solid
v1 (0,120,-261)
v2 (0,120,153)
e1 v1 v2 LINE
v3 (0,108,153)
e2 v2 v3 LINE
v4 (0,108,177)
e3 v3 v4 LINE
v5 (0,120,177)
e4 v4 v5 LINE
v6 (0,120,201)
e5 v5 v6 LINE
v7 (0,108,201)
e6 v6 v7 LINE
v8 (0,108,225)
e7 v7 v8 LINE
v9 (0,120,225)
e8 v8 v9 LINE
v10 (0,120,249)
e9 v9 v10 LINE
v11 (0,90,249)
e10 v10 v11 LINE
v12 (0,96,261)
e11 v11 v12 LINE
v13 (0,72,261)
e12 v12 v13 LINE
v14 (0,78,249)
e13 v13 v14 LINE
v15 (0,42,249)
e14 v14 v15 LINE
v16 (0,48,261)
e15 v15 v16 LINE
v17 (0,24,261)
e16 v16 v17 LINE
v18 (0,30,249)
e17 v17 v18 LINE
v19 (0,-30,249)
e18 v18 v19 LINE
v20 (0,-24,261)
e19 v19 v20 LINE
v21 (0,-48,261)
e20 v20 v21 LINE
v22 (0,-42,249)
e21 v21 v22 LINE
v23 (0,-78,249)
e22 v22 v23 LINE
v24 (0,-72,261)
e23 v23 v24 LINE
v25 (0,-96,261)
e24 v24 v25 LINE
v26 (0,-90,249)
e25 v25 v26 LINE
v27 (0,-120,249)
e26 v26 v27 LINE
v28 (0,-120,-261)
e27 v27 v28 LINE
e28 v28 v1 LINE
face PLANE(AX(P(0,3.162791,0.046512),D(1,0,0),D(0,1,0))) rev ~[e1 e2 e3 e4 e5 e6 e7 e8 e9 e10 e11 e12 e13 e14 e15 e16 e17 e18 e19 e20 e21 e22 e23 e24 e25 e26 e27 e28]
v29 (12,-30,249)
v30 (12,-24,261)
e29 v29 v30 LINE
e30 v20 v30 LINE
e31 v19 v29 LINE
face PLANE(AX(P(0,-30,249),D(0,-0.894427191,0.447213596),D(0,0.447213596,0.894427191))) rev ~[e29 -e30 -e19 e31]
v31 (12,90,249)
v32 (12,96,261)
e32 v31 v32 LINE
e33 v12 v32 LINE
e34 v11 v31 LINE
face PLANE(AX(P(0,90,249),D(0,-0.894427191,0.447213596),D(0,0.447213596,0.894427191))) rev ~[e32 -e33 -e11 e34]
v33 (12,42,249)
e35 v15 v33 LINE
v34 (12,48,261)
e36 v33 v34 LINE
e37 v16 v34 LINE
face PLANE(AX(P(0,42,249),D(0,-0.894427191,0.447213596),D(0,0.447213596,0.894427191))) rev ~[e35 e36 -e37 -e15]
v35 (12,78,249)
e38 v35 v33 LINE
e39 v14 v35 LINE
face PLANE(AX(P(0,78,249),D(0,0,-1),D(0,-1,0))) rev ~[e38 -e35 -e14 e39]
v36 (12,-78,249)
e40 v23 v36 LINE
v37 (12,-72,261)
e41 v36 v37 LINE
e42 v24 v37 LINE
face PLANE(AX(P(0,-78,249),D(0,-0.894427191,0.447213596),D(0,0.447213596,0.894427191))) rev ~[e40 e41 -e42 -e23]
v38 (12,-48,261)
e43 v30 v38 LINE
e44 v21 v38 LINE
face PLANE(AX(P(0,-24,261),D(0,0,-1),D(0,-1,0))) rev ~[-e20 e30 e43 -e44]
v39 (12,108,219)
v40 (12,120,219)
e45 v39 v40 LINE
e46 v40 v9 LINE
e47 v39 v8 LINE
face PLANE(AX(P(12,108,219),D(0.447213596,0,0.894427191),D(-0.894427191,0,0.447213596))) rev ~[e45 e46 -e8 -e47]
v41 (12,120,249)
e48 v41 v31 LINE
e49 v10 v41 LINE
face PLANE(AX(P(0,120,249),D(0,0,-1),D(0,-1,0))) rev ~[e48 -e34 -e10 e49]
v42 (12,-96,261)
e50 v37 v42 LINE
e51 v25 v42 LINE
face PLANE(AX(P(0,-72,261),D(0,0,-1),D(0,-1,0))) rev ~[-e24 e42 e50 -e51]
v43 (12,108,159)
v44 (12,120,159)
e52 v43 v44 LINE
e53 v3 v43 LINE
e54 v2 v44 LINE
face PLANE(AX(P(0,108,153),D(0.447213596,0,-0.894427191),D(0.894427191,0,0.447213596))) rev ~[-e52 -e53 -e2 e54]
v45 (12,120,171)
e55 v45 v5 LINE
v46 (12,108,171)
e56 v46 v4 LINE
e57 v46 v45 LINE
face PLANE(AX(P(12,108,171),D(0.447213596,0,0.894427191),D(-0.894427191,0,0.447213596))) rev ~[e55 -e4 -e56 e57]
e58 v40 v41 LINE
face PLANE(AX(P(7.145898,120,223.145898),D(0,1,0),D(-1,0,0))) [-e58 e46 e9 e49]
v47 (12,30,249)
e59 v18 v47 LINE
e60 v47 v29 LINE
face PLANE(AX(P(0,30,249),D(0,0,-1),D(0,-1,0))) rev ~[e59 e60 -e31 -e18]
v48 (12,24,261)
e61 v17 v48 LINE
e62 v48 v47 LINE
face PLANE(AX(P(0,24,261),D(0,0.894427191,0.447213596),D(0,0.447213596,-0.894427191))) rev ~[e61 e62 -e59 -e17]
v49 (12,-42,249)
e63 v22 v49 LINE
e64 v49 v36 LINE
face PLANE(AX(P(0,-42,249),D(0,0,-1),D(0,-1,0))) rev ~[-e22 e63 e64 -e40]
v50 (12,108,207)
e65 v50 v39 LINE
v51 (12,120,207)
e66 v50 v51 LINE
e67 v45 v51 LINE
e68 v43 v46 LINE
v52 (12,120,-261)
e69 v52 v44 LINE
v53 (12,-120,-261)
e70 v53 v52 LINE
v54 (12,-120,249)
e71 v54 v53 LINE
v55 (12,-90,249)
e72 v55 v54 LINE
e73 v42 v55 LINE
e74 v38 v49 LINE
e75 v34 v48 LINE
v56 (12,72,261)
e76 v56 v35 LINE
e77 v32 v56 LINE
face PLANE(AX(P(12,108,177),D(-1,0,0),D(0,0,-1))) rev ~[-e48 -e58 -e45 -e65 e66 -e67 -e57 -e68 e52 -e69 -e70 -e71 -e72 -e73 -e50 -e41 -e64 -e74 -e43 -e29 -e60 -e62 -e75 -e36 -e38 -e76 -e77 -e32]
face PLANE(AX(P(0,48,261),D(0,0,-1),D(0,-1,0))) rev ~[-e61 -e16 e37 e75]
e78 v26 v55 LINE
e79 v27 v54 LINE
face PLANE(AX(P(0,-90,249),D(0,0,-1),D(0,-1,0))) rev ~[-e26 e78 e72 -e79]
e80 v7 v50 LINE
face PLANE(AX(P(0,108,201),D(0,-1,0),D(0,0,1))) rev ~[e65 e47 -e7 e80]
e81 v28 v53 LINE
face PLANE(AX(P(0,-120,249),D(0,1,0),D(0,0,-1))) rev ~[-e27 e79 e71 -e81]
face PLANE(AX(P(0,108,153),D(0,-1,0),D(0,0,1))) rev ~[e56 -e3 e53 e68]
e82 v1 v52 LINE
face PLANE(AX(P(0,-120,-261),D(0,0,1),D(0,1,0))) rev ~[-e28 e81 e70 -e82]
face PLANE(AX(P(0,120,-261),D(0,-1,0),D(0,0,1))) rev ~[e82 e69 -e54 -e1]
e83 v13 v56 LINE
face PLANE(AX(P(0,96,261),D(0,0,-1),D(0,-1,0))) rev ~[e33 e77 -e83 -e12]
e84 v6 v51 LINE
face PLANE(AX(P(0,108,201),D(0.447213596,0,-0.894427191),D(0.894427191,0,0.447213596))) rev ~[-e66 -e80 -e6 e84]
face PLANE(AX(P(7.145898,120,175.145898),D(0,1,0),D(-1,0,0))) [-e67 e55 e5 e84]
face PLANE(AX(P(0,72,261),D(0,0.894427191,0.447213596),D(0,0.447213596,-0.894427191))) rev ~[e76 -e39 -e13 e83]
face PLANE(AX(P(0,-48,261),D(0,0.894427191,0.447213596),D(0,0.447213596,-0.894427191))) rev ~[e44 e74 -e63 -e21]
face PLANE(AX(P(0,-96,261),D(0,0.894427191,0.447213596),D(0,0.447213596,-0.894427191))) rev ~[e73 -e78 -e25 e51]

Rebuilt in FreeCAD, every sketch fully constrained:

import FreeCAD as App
import Part
import Sketcher
Q = App.Units.Quantity

doc = App.newDocument("Part")
body = doc.addObject("PartDesign::Body", "Body")

sketch1 = body.newObject("Sketcher::SketchObject", "Sketch")
sketch1.AttachmentSupport = (doc.getObject("YZ_Plane"), [""])
sketch1.MapMode = "FlatFace"
sketch1.addGeometry([
    Part.LineSegment(App.Vector(120, 225, 0), App.Vector(120, 249, 0)),
    Part.LineSegment(App.Vector(120, 249, 0), App.Vector(90, 249, 0)),
    Part.LineSegment(App.Vector(90, 249, 0), App.Vector(96, 261, 0)),
    Part.LineSegment(App.Vector(96, 261, 0), App.Vector(72, 261, 0)),
    Part.LineSegment(App.Vector(72, 261, 0), App.Vector(78, 249, 0)),
    Part.LineSegment(App.Vector(78, 249, 0), App.Vector(42, 249, 0)),
    Part.LineSegment(App.Vector(42, 249, 0), App.Vector(48, 261, 0)),
    Part.LineSegment(App.Vector(48, 261, 0), App.Vector(24, 261, 0)),
    Part.LineSegment(App.Vector(24, 261, 0), App.Vector(30, 249, 0)),
    Part.LineSegment(App.Vector(30, 249, 0), App.Vector(-30, 249, 0)),
    Part.LineSegment(App.Vector(-30, 249, 0), App.Vector(-24, 261, 0)),
    Part.LineSegment(App.Vector(-24, 261, 0), App.Vector(-48, 261, 0)),
    Part.LineSegment(App.Vector(-48, 261, 0), App.Vector(-42, 249, 0)),
    Part.LineSegment(App.Vector(-42, 249, 0), App.Vector(-78, 249, 0)),
    Part.LineSegment(App.Vector(-78, 249, 0), App.Vector(-72, 261, 0)),
    Part.LineSegment(App.Vector(-72, 261, 0), App.Vector(-96, 261, 0)),
    Part.LineSegment(App.Vector(-96, 261, 0), App.Vector(-90, 249, 0)),
    Part.LineSegment(App.Vector(-90, 249, 0), App.Vector(-120, 249, 0)),
    Part.LineSegment(App.Vector(-120, 249, 0), App.Vector(-120, -261, 0)),
    Part.LineSegment(App.Vector(-120, -261, 0), App.Vector(120, -261, 0)),
    Part.LineSegment(App.Vector(120, -261, 0), App.Vector(120, 153, 0)),
    Part.LineSegment(App.Vector(120, 153, 0), App.Vector(108, 153, 0)),
    Part.LineSegment(App.Vector(108, 153, 0), App.Vector(108, 177, 0)),
    Part.LineSegment(App.Vector(108, 177, 0), App.Vector(120, 177, 0)),
    Part.LineSegment(App.Vector(120, 177, 0), App.Vector(120, 201, 0)),
    Part.LineSegment(App.Vector(120, 201, 0), App.Vector(108, 201, 0)),
    Part.LineSegment(App.Vector(108, 201, 0), App.Vector(108, 225, 0)),
    Part.LineSegment(App.Vector(108, 225, 0), App.Vector(120, 225, 0)),
], False)
sketch1.addConstraint([
    Sketcher.Constraint("Coincident", 0, 2, 1, 1),
    Sketcher.Constraint("Coincident", 1, 2, 2, 1),
    Sketcher.Constraint("Coincident", 2, 2, 3, 1),
    Sketcher.Constraint("Coincident", 3, 2, 4, 1),
    Sketcher.Constraint("Coincident", 4, 2, 5, 1),
    Sketcher.Constraint("Coincident", 5, 2, 6, 1),
    Sketcher.Constraint("Coincident", 6, 2, 7, 1),
    Sketcher.Constraint("Coincident", 7, 2, 8, 1),
    Sketcher.Constraint("Coincident", 8, 2, 9, 1),
    Sketcher.Constraint("Coincident", 9, 2, 10, 1),
    Sketcher.Constraint("Coincident", 10, 2, 11, 1),
    Sketcher.Constraint("Coincident", 11, 2, 12, 1),
    Sketcher.Constraint("Coincident", 12, 2, 13, 1),
    Sketcher.Constraint("Coincident", 13, 2, 14, 1),
    Sketcher.Constraint("Coincident", 14, 2, 15, 1),
    Sketcher.Constraint("Coincident", 15, 2, 16, 1),
    Sketcher.Constraint("Coincident", 16, 2, 17, 1),
    Sketcher.Constraint("Coincident", 17, 2, 18, 1),
    Sketcher.Constraint("Coincident", 18, 2, 19, 1),
    Sketcher.Constraint("Coincident", 19, 2, 20, 1),
    Sketcher.Constraint("Coincident", 20, 2, 21, 1),
    Sketcher.Constraint("Coincident", 21, 2, 22, 1),
    Sketcher.Constraint("Coincident", 22, 2, 23, 1),
    Sketcher.Constraint("Coincident", 23, 2, 24, 1),
    Sketcher.Constraint("Coincident", 24, 2, 25, 1),
    Sketcher.Constraint("Coincident", 25, 2, 26, 1),
    Sketcher.Constraint("Coincident", 26, 2, 27, 1),
    Sketcher.Constraint("Coincident", 27, 2, 0, 1),
    Sketcher.Constraint("Vertical", 0),
    Sketcher.Constraint("Horizontal", 1),
    Sketcher.Constraint("Horizontal", 3),
    Sketcher.Constraint("Horizontal", 5),
    Sketcher.Constraint("Horizontal", 7),
    Sketcher.Constraint("Horizontal", 9),
    Sketcher.Constraint("Horizontal", 11),
    Sketcher.Constraint("Horizontal", 13),
    Sketcher.Constraint("Horizontal", 15),
    Sketcher.Constraint("Horizontal", 17),
    Sketcher.Constraint("Vertical", 18),
    Sketcher.Constraint("Horizontal", 19),
    Sketcher.Constraint("Vertical", 20),
    Sketcher.Constraint("Horizontal", 21),
    Sketcher.Constraint("Vertical", 22),
    Sketcher.Constraint("Horizontal", 23),
    Sketcher.Constraint("Vertical", 24),
    Sketcher.Constraint("Horizontal", 25),
    Sketcher.Constraint("Vertical", 26),
    Sketcher.Constraint("Horizontal", 27),
    Sketcher.Constraint("Symmetric", 7, 2, 10, 2, -2),
    Sketcher.Constraint("Symmetric", 5, 2, 12, 2, -2),
    Sketcher.Constraint("Symmetric", 3, 2, 14, 2, -2),
    Sketcher.Constraint("Symmetric", 1, 2, 16, 2, -2),
    Sketcher.Constraint("Parallel", 2, 6),
    Sketcher.Constraint("Parallel", 4, 8),
    Sketcher.Constraint("Parallel", 6, 10),
    Sketcher.Constraint("Parallel", 8, 12),
    Sketcher.Constraint("Parallel", 10, 14),
    Sketcher.Constraint("Parallel", 12, 16),
    Sketcher.Constraint("Horizontal", 1, 2, 4, 2),
    Sketcher.Constraint("Horizontal", 3, 2, 6, 2),
    Sketcher.Constraint("Horizontal", 5, 2, 8, 2),
    Sketcher.Constraint("Vertical", 0, 2, 19, 2),
    Sketcher.Constraint("Vertical", 20, 2, 23, 2),
    Sketcher.Constraint("Vertical", 22, 2, 25, 2),
    Sketcher.Constraint("Equal", 3, 7),
    Sketcher.Constraint("Equal", 7, 11),
    Sketcher.Constraint("Equal", 1, 17),
    Sketcher.Constraint("Equal", 15, 0),
    Sketcher.Constraint("Equal", 0, 22),
    Sketcher.Constraint("Equal", 22, 24),
    Sketcher.Constraint("Equal", 24, 26),
    Sketcher.Constraint("DistanceX", 1, 2, 1, 1, Q("30 mm")),
    Sketcher.Constraint("DistanceX", 3, 2, 3, 1, Q("24 mm")),
    Sketcher.Constraint("DistanceX", 5, 2, 5, 1, Q("36 mm")),
    Sketcher.Constraint("DistanceX", 9, 2, 9, 1, Q("60 mm")),
    Sketcher.Constraint("DistanceX", 19, 1, 19, 2, Q("240 mm")),
    Sketcher.Constraint("DistanceX", 21, 2, 21, 1, Q("12 mm")),
    Sketcher.Constraint("DistanceY", 18, 2, 18, 1, Q("510 mm")),
    Sketcher.Constraint("DistanceY", -1, 1, 0, 2, Q("249 mm")),
    Sketcher.Constraint("DistanceY", -1, 1, 2, 2, Q("261 mm")),
])
pad1 = body.newObject("PartDesign::Pad", "Pad")
pad1.Profile = sketch1
pad1.Length = 12

sketch2 = body.newObject("Sketcher::SketchObject", "Sketch001")
sketch2.AttachmentSupport = (doc.getObject("XZ_Plane"), [""])
sketch2.MapMode = "FlatFace"
sketch2.AttachmentOffset = App.Placement(App.Vector(0, 0, -108), App.Rotation())
sketch2.addGeometry([
    Part.LineSegment(App.Vector(12, 219, 0), App.Vector(0, 225, 0)),
    Part.LineSegment(App.Vector(0, 225, 0), App.Vector(12, 225, 0)),
    Part.LineSegment(App.Vector(12, 225, 0), App.Vector(12, 219, 0)),
    Part.LineSegment(App.Vector(12, 201, 0), App.Vector(0, 201, 0)),
    Part.LineSegment(App.Vector(0, 201, 0), App.Vector(12, 207, 0)),
    Part.LineSegment(App.Vector(12, 207, 0), App.Vector(12, 201, 0)),
], False)
sketch2.addConstraint([
    Sketcher.Constraint("Coincident", 0, 2, 1, 1),
    Sketcher.Constraint("Coincident", 1, 2, 2, 1),
    Sketcher.Constraint("Coincident", 2, 2, 0, 1),
    Sketcher.Constraint("Coincident", 3, 2, 4, 1),
    Sketcher.Constraint("Coincident", 4, 2, 5, 1),
    Sketcher.Constraint("Coincident", 5, 2, 3, 1),
    Sketcher.Constraint("Horizontal", 1),
    Sketcher.Constraint("Vertical", 2),
    Sketcher.Constraint("Horizontal", 3),
    Sketcher.Constraint("Vertical", 5),
    Sketcher.Constraint("PointOnObject", 0, 2, -2),
    Sketcher.Constraint("PointOnObject", 3, 2, -2),
    Sketcher.Constraint("Vertical", 2, 2, 4, 2),
    Sketcher.Constraint("Equal", 2, 5),
    Sketcher.Constraint("DistanceX", 1, 1, 1, 2, Q("12 mm")),
    Sketcher.Constraint("DistanceY", 2, 2, 2, 1, Q("6 mm")),
    Sketcher.Constraint("DistanceY", -1, 1, 0, 2, Q("225 mm")),
    Sketcher.Constraint("DistanceY", -1, 1, 3, 2, Q("201 mm")),
])
pad2 = body.newObject("PartDesign::Pad", "Pad001")
pad2.Profile = sketch2
pad2.Length = 12
pad2.Reversed = True

sketch3 = body.newObject("Sketcher::SketchObject", "Sketch002")
sketch3.AttachmentSupport = (doc.getObject("XZ_Plane"), [""])
sketch3.MapMode = "FlatFace"
sketch3.AttachmentOffset = App.Placement(App.Vector(0, 0, -108), App.Rotation())
sketch3.addGeometry([
    Part.LineSegment(App.Vector(12, 171, 0), App.Vector(0, 177, 0)),
    Part.LineSegment(App.Vector(0, 177, 0), App.Vector(12, 177, 0)),
    Part.LineSegment(App.Vector(12, 177, 0), App.Vector(12, 171, 0)),
    Part.LineSegment(App.Vector(12, 153, 0), App.Vector(0, 153, 0)),
    Part.LineSegment(App.Vector(0, 153, 0), App.Vector(12, 159, 0)),
    Part.LineSegment(App.Vector(12, 159, 0), App.Vector(12, 153, 0)),
], False)
sketch3.addConstraint([
    Sketcher.Constraint("Coincident", 0, 2, 1, 1),
    Sketcher.Constraint("Coincident", 1, 2, 2, 1),
    Sketcher.Constraint("Coincident", 2, 2, 0, 1),
    Sketcher.Constraint("Coincident", 3, 2, 4, 1),
    Sketcher.Constraint("Coincident", 4, 2, 5, 1),
    Sketcher.Constraint("Coincident", 5, 2, 3, 1),
    Sketcher.Constraint("Horizontal", 1),
    Sketcher.Constraint("Vertical", 2),
    Sketcher.Constraint("Horizontal", 3),
    Sketcher.Constraint("Vertical", 5),
    Sketcher.Constraint("PointOnObject", 0, 2, -2),
    Sketcher.Constraint("PointOnObject", 3, 2, -2),
    Sketcher.Constraint("Vertical", 2, 2, 4, 2),
    Sketcher.Constraint("Equal", 2, 5),
    Sketcher.Constraint("DistanceX", 1, 1, 1, 2, Q("12 mm")),
    Sketcher.Constraint("DistanceY", 2, 2, 2, 1, Q("6 mm")),
    Sketcher.Constraint("DistanceY", -1, 1, 0, 2, Q("177 mm")),
    Sketcher.Constraint("DistanceY", -1, 1, 3, 2, Q("153 mm")),
])
pad3 = body.newObject("PartDesign::Pad", "Pad002")
pad3.Profile = sketch3
pad3.Length = 12
pad3.Reversed = True

doc.recompute()
